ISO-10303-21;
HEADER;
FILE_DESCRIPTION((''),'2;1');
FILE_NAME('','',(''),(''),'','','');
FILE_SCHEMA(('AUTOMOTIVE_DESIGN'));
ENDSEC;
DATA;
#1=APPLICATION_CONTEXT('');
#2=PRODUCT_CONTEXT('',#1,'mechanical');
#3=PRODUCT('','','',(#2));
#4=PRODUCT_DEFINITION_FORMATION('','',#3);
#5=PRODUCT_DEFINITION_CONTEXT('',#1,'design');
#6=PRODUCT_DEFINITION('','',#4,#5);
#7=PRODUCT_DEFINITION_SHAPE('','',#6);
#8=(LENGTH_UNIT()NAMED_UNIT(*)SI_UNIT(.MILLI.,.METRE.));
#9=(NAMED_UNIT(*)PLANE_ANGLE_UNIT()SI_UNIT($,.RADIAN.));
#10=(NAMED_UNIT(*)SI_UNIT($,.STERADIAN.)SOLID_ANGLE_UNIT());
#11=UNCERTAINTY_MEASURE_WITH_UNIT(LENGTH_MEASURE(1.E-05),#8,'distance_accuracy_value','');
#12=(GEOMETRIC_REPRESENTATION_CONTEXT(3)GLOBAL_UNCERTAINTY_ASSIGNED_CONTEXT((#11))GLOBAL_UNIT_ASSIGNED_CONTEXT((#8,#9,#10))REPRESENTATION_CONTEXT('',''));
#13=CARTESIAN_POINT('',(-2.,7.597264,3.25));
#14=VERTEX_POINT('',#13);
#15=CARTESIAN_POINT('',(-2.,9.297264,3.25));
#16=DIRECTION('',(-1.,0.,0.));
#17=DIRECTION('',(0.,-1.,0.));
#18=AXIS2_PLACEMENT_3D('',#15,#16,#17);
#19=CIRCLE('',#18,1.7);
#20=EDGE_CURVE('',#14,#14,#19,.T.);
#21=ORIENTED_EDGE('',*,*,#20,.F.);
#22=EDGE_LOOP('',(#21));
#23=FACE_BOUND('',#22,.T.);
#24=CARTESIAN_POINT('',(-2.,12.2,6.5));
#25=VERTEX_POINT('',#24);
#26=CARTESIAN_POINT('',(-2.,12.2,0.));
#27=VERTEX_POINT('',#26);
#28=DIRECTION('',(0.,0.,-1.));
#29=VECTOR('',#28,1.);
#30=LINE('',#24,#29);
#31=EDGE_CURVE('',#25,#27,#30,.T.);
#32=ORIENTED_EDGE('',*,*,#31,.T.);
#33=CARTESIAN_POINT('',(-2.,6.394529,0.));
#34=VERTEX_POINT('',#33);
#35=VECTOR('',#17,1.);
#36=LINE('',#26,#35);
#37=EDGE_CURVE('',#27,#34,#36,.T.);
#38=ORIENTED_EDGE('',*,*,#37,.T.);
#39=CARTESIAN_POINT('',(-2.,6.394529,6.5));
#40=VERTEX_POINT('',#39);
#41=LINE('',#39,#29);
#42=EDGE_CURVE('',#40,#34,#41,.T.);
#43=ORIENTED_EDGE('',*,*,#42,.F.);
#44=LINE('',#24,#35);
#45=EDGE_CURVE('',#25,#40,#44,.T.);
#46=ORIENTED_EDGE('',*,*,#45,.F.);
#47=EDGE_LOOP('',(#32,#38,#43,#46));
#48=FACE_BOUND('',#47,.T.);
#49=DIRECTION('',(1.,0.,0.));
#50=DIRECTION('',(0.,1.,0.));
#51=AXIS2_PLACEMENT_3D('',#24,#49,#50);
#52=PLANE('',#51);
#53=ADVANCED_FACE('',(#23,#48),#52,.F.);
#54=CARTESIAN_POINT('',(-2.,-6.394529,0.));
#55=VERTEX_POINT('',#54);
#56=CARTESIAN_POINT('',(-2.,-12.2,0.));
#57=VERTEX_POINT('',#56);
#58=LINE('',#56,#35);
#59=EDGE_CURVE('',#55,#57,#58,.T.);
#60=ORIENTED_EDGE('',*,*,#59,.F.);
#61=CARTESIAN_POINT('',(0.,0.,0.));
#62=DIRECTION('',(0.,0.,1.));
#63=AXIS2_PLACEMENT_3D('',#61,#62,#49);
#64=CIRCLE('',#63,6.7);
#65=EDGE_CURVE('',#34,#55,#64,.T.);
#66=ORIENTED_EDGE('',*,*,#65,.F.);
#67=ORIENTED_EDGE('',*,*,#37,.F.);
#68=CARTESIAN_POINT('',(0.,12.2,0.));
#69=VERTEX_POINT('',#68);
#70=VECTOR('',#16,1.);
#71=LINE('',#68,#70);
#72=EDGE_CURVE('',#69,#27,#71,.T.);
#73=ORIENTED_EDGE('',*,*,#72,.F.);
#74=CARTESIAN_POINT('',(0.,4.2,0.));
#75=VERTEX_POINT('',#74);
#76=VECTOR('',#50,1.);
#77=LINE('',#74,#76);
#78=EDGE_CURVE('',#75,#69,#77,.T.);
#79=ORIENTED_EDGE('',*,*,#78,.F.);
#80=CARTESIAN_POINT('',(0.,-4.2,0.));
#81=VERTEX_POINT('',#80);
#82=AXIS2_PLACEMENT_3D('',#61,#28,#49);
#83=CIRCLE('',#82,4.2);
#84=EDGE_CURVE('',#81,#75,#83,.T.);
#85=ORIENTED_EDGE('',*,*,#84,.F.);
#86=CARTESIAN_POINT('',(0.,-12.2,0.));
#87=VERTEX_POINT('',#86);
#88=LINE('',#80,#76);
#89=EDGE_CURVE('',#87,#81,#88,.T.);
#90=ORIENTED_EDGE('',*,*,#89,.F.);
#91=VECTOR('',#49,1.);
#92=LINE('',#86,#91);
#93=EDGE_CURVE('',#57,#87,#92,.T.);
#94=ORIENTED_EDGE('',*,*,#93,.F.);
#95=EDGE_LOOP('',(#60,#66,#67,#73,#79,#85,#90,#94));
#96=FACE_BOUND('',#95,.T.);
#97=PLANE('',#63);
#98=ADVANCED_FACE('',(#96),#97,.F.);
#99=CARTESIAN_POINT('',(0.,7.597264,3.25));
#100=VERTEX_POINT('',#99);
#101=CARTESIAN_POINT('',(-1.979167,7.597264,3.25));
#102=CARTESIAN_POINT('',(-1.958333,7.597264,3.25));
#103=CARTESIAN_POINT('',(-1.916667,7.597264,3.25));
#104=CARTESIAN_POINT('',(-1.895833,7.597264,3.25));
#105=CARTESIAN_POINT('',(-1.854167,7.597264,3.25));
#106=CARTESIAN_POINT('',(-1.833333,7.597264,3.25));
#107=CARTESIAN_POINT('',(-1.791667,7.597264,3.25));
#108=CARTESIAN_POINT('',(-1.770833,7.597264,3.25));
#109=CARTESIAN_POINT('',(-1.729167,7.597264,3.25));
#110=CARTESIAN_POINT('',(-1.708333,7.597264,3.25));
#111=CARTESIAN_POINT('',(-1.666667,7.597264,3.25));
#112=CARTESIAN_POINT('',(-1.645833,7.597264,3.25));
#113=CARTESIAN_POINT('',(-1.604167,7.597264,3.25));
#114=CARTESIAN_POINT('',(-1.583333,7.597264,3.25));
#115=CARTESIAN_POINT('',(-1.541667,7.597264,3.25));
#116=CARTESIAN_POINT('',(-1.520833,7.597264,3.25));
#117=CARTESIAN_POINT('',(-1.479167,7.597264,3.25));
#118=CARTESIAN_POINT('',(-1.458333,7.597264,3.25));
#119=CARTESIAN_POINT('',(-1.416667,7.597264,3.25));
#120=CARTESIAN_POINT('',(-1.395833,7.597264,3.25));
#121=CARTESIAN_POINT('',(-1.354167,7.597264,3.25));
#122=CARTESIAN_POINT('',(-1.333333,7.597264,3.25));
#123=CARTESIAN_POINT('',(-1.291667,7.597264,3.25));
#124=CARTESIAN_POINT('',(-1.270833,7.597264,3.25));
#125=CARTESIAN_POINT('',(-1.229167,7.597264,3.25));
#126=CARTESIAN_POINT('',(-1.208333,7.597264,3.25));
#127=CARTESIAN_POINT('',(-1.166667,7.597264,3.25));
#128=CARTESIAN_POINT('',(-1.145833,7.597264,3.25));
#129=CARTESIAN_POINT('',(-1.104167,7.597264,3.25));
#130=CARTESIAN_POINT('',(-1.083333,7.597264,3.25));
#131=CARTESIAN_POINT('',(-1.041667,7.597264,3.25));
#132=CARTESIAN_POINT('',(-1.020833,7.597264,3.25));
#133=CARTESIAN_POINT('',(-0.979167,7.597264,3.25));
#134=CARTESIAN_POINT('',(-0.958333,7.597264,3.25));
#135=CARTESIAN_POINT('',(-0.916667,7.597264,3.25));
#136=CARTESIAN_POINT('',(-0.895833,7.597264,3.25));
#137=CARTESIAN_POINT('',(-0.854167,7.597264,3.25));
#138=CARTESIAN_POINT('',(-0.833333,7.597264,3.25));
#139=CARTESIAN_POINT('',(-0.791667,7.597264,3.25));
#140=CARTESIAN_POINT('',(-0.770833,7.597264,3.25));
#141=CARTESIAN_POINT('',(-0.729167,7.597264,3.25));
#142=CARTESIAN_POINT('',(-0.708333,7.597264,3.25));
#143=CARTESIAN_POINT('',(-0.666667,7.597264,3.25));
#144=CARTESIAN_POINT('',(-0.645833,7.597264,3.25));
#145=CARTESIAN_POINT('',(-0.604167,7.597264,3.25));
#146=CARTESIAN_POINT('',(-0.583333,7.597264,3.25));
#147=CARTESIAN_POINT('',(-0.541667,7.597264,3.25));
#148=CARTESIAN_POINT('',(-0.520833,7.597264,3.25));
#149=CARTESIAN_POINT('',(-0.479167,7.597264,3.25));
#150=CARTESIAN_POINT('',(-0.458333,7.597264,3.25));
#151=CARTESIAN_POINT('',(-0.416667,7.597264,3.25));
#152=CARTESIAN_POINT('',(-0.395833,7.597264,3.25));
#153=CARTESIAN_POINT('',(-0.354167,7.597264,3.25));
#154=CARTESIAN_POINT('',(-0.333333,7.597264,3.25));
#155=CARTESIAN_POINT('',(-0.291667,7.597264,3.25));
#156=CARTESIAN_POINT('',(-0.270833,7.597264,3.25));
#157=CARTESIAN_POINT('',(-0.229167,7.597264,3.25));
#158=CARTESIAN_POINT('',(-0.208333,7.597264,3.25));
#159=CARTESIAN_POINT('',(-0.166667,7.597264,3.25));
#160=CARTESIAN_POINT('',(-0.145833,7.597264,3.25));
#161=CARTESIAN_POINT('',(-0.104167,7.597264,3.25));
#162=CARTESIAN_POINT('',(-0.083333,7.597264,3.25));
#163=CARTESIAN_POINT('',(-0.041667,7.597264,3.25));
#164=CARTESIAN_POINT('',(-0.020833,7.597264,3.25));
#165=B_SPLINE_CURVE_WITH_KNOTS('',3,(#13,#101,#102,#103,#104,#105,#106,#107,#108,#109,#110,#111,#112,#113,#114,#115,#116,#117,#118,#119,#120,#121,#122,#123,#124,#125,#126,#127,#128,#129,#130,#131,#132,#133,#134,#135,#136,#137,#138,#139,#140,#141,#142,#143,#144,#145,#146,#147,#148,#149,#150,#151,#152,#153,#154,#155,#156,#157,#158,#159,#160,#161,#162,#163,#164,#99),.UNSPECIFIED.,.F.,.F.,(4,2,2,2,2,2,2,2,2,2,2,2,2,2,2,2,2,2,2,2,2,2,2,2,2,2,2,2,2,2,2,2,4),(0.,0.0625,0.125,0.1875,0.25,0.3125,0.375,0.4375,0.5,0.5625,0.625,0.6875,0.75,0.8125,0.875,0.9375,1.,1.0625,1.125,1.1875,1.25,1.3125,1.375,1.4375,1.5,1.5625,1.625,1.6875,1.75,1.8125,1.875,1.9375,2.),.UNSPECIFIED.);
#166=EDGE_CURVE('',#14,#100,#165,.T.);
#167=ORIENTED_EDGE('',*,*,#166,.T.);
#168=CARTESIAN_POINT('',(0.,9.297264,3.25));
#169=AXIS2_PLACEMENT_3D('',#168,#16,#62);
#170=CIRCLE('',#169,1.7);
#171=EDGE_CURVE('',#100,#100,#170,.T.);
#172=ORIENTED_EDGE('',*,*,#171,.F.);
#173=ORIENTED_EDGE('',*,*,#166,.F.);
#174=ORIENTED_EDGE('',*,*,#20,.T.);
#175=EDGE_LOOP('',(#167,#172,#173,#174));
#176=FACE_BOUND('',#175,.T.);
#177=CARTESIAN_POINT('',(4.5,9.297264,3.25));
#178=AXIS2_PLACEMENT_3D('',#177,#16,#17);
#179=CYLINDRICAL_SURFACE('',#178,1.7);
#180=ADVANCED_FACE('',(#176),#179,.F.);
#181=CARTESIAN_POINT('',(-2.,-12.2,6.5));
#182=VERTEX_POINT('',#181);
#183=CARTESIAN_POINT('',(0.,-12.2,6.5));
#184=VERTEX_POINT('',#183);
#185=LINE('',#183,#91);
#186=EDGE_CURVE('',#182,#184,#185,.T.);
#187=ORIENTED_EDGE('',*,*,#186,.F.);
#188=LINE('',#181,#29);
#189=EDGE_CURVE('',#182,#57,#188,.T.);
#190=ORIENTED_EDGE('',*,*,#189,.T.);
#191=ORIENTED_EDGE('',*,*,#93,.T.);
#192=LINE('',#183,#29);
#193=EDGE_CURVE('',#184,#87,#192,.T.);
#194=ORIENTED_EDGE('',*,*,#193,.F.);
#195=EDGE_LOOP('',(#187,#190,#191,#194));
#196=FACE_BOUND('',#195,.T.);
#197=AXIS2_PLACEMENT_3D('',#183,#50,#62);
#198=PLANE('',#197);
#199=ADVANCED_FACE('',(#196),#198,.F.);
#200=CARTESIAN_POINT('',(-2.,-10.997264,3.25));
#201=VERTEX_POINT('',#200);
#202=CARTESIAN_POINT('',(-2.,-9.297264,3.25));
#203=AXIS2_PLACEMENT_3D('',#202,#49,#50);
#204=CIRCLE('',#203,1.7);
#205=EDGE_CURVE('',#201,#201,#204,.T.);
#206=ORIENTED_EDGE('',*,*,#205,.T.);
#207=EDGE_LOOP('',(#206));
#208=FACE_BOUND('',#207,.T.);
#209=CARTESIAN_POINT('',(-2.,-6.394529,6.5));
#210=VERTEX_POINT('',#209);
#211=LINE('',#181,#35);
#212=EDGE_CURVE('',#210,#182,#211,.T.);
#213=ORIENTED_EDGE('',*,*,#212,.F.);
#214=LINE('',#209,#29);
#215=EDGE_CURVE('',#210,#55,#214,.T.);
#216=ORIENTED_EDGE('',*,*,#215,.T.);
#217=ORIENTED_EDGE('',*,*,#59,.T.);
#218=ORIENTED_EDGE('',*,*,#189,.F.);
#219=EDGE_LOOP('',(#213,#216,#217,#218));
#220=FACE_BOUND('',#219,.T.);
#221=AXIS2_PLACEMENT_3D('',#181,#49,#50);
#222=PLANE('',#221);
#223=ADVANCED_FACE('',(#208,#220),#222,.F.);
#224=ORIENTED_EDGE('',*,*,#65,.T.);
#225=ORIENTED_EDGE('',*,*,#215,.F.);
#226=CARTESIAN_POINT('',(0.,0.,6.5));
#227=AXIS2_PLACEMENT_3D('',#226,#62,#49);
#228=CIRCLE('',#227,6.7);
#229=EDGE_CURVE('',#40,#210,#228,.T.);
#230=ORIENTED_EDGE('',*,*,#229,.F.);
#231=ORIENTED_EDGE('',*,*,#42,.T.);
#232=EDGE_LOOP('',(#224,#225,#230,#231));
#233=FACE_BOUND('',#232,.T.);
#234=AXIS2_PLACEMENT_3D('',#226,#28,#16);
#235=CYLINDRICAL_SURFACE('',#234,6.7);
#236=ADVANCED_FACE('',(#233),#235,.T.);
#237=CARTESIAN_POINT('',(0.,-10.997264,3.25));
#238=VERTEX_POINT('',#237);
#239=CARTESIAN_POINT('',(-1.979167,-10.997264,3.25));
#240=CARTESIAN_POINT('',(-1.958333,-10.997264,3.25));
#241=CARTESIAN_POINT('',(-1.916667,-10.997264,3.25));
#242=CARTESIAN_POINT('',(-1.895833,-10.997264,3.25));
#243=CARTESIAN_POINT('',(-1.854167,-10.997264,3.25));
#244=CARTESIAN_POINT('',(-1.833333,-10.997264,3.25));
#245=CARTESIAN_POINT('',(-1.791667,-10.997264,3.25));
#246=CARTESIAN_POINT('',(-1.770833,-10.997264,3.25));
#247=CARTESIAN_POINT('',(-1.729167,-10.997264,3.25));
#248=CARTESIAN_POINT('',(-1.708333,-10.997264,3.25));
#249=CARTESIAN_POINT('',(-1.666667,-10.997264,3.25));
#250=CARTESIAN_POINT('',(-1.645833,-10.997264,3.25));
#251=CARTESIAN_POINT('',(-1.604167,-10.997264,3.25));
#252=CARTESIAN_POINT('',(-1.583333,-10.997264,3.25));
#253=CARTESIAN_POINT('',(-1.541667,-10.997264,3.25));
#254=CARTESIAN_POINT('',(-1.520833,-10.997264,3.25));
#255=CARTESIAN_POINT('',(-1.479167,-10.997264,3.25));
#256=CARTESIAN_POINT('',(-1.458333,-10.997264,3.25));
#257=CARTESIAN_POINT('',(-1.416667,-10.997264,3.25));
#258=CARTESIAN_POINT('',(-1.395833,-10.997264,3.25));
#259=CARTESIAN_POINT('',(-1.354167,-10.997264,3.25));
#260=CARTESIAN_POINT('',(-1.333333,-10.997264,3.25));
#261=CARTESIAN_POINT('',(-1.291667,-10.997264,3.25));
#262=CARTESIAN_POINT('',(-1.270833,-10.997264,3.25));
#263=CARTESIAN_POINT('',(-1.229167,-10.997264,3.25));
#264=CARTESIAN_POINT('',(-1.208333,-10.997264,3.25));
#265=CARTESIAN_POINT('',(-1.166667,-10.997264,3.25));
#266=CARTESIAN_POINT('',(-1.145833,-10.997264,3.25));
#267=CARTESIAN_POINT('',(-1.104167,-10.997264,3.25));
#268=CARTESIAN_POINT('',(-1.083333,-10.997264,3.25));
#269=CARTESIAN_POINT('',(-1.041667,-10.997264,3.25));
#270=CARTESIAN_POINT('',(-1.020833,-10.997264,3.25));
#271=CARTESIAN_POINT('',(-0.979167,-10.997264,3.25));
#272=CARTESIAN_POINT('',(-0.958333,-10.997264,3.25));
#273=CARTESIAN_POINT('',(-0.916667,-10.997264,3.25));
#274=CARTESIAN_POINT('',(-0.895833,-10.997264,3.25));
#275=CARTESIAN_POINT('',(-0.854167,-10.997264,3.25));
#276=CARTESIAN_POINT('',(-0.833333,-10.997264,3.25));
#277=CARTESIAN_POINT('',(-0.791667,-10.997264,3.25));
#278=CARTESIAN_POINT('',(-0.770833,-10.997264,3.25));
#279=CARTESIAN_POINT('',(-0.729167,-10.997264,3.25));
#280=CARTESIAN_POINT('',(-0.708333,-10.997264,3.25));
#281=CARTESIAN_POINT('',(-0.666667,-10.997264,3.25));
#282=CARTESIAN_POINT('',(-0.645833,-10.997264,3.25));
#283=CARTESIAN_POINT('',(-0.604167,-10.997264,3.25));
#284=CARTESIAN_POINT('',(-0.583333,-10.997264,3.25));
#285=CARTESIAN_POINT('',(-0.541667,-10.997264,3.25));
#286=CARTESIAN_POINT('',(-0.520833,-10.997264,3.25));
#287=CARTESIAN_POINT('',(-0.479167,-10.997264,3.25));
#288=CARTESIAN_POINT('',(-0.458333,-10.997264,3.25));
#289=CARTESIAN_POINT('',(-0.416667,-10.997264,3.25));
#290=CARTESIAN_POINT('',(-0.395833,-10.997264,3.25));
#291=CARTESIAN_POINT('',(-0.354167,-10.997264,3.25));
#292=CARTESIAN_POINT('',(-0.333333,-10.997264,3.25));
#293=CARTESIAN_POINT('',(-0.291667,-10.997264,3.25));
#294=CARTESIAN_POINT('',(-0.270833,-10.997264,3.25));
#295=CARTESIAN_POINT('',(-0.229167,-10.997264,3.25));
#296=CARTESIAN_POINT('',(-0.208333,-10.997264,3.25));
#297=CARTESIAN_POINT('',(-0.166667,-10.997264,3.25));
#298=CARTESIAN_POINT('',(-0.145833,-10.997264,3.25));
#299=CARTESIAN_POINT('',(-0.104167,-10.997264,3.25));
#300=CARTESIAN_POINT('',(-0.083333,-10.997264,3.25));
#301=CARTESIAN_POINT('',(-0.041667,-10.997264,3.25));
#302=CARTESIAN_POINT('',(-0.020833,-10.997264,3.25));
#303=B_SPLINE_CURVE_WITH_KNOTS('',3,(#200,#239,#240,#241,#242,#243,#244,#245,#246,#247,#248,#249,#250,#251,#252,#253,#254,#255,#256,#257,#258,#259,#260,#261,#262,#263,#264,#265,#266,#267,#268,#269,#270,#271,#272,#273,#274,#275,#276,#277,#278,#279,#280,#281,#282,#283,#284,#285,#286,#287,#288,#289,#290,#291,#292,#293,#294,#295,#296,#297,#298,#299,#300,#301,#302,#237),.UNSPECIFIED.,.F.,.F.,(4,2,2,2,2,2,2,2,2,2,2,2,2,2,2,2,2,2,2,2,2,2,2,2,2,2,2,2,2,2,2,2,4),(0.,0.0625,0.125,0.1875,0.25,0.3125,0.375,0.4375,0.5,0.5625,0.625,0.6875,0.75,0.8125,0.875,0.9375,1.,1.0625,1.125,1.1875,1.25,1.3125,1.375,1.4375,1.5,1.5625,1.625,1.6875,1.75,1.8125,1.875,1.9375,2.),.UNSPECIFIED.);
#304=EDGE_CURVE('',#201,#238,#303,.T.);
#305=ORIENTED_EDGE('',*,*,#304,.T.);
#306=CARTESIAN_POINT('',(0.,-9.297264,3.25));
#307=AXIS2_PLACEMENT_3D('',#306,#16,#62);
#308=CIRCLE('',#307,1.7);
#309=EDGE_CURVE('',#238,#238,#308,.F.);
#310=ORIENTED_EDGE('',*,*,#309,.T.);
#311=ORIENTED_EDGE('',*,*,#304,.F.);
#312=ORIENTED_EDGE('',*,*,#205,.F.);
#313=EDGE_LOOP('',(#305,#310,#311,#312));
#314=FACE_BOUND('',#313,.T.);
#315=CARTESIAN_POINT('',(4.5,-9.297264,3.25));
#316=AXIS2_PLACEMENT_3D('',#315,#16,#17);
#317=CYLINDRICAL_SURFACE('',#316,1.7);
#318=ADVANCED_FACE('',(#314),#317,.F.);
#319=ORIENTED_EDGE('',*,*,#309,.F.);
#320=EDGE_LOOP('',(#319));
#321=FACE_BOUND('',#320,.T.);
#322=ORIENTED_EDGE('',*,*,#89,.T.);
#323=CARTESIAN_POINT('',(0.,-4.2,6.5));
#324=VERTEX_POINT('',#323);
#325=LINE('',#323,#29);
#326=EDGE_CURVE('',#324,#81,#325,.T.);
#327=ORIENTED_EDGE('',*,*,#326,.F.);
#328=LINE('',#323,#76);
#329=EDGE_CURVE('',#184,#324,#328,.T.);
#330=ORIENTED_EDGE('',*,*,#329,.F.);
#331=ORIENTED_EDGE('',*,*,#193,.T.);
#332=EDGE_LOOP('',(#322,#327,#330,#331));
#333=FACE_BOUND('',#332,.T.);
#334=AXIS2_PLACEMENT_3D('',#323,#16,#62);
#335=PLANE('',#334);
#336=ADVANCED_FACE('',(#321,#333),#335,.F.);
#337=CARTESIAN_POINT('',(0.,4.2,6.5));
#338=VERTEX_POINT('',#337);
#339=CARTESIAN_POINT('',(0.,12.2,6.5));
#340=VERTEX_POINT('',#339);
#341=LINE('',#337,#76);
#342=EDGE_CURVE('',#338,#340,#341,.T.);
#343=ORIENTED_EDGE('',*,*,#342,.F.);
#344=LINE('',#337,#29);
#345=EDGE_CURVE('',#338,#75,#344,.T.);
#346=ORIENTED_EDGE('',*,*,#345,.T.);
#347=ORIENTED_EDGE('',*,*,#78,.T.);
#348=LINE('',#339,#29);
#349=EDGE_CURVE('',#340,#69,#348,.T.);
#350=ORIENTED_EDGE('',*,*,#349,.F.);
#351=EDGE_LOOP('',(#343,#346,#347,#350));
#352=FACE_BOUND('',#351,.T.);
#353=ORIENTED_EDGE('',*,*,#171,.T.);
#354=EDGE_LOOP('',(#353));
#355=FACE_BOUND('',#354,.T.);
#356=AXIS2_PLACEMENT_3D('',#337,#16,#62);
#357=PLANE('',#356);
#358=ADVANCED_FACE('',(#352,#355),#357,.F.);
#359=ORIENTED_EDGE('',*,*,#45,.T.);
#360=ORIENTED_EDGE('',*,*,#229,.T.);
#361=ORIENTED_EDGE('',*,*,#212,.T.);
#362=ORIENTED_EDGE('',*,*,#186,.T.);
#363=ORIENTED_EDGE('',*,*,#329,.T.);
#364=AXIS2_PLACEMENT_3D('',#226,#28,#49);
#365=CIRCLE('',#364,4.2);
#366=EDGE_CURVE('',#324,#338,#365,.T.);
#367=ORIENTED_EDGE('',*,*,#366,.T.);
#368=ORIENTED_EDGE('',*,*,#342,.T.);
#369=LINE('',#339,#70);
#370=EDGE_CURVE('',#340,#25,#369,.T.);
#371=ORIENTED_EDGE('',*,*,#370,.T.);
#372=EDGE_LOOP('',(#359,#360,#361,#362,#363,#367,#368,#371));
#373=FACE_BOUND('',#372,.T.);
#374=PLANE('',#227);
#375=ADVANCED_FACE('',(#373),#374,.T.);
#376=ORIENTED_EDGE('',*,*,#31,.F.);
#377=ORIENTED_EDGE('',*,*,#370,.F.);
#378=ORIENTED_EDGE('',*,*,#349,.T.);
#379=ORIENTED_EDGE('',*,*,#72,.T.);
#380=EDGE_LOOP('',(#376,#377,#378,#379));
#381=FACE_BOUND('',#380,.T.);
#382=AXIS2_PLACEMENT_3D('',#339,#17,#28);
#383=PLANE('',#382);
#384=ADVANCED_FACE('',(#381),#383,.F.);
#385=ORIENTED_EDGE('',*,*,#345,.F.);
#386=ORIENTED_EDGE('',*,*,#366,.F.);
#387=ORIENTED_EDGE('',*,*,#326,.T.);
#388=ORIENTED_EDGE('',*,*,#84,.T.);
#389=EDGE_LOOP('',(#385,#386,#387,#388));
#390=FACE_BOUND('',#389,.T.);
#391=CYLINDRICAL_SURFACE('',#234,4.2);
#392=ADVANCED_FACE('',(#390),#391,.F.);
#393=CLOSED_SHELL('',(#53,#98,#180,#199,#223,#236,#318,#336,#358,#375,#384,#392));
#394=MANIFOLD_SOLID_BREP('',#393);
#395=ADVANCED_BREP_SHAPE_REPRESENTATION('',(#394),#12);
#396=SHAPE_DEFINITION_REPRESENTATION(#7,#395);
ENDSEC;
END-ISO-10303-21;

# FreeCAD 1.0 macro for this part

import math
import FreeCAD as App
import Part
import Sketcher
from FreeCAD import Vector

doc = App.newDocument("Part")
body = doc.addObject("PartDesign::Body", "Body")

# Sketch on XY plane
sketch1 = body.newObject("Sketcher::SketchObject", "Sketch")
sketch1.AttachmentSupport = (doc.getObject("XY_Plane"), [""])
sketch1.MapMode = "FlatFace"
sketch1.addGeometry(Part.LineSegment(Vector(0, 4.2, 0), Vector(0, 12.2, 0)), False)
sketch1.addGeometry(Part.LineSegment(Vector(0, 12.2, 0), Vector(-2, 12.2, 0)), False)
sketch1.addGeometry(Part.LineSegment(Vector(-2, 12.2, 0), Vector(-2, 6.4, 0)), False)
sketch1.addGeometry(Part.ArcOfCircle(Part.Circle(Vector(0, 0, 0), Vector(0, 0, 1), 6.7), math.radians(107), math.radians(253)), False)
sketch1.addGeometry(Part.LineSegment(Vector(-2, -6.4, 0), Vector(-2, -12.2, 0)), False)
sketch1.addGeometry(Part.LineSegment(Vector(-2, -12.2, 0), Vector(0, -12.2, 0)), False)
sketch1.addGeometry(Part.LineSegment(Vector(0, -12.2, 0), Vector(0, -4.2, 0)), False)
sketch1.addGeometry(Part.ArcOfCircle(Part.Circle(Vector(0, 0, 0), Vector(0, 0, 1), 4.2), math.radians(90), math.radians(270)), False)
sketch1.addConstraint(Sketcher.Constraint("Coincident", 0, 2, 1, 1))
sketch1.addConstraint(Sketcher.Constraint("Coincident", 1, 2, 2, 1))
sketch1.addConstraint(Sketcher.Constraint("Coincident", 2, 2, 3, 1))
sketch1.addConstraint(Sketcher.Constraint("Coincident", 3, 2, 4, 1))
sketch1.addConstraint(Sketcher.Constraint("Coincident", 4, 2, 5, 1))
sketch1.addConstraint(Sketcher.Constraint("Coincident", 5, 2, 6, 1))
sketch1.addConstraint(Sketcher.Constraint("Coincident", 6, 2, 7, 2))
sketch1.addConstraint(Sketcher.Constraint("Coincident", 7, 1, 0, 1))
sketch1.addConstraint(Sketcher.Constraint("Vertical", 0))
sketch1.addConstraint(Sketcher.Constraint("Horizontal", 1))
sketch1.addConstraint(Sketcher.Constraint("Vertical", 2))
sketch1.addConstraint(Sketcher.Constraint("Vertical", 4))
sketch1.addConstraint(Sketcher.Constraint("Horizontal", 5))
sketch1.addConstraint(Sketcher.Constraint("Vertical", 6))
sketch1.addConstraint(Sketcher.Constraint("Coincident", 3, 3, -1, 1))
sketch1.addConstraint(Sketcher.Constraint("Coincident", 7, 3, -1, 1))
sketch1.addConstraint(Sketcher.Constraint("Symmetric", 0, 2, 5, 2, -1, 1))
sketch1.addConstraint(Sketcher.Constraint("PointOnObject", 0, 2, -2))
sketch1.addConstraint(Sketcher.Constraint("Vertical", 2, 2, 3, 2))
sketch1.addConstraint(Sketcher.Constraint("Radius", 3, 6.7))
sketch1.addConstraint(Sketcher.Constraint("Radius", 7, 4.2))
sketch1.addConstraint(Sketcher.Constraint("DistanceX", 1, 2, 1, 1, 2.0))
sketch1.addConstraint(Sketcher.Constraint("DistanceY", 0, 1, 0, 2, 8.0))
pad1 = body.newObject("PartDesign::Pad", "Pad")
pad1.Profile = sketch1
pad1.Length = 6.5

# Sketch on YZ plane
sketch2 = body.newObject("Sketcher::SketchObject", "Sketch001")
sketch2.AttachmentSupport = (doc.getObject("YZ_Plane"), [""])
sketch2.MapMode = "FlatFace"
sketch2.AttachmentOffset = App.Placement(Vector(0, 0, -2), App.Rotation())
sketch2.addGeometry(Part.Circle(Vector(9.3, 3.2, 0), Vector(0, 0, 1), 1.7), False)
sketch2.addConstraint(Sketcher.Constraint("Diameter", 0, 3.4))
sketch2.addConstraint(Sketcher.Constraint("DistanceY", -1, 1, 0, 3, 3.25))
sketch2.addConstraint(Sketcher.Constraint("DistanceX", -1, 1, 0, 3, 9.297264))
pocket1 = body.newObject("PartDesign::Pocket", "Pocket")
pocket1.Profile = sketch2
pocket1.Length = 6.5
pocket1.Reversed = True
doc.recompute()

mirrored = body.newObject("PartDesign::Mirrored", "Mirrored")
mirrored.Originals = [pocket1]
mirrored.MirrorPlane = (doc.getObject("XZ_Plane"), [""])
body.Tip = mirrored

doc.recompute()
